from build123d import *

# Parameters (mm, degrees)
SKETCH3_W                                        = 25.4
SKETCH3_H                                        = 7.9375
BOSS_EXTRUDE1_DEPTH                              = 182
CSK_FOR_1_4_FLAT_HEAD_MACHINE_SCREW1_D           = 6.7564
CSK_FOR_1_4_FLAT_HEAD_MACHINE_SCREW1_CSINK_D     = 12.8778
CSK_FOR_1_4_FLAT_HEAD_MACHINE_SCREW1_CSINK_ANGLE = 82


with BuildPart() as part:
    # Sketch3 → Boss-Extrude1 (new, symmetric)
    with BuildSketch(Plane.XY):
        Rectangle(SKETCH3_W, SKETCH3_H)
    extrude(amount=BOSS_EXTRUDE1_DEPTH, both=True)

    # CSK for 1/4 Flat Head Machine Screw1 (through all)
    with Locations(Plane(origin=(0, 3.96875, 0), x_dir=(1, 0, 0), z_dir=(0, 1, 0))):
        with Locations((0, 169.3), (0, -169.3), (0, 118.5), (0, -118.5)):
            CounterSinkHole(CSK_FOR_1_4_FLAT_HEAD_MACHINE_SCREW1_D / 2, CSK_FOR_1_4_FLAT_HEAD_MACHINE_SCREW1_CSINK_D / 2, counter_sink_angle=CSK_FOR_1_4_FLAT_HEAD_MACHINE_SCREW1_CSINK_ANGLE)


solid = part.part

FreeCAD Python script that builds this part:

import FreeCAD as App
import Part
import Sketcher

V = App.Vector
Q = App.Units.Quantity


def add_polygon(sketch, points):
    """Adds a closed chain of lines whose ends are joined by coincident constraints."""
    first, n = sketch.GeometryCount, len(points)
    for a, b in zip(points, points[1:] + points[:1]):
        sketch.addGeometry(Part.LineSegment(App.Vector(*a, 0), App.Vector(*b, 0)), False)
    for i in range(n):
        sketch.addConstraint(Sketcher.Constraint("Coincident", first + i, 2, first + (i + 1) % n, 1))

doc = App.newDocument("Part")
params = doc.addObject("Spreadsheet::Sheet", "Params")
for row, (alias, value) in enumerate([
    ("sketch1_width", "1 in"),
    ("sketch1_height", "0.3125 in"),
    ("pad1_length", "364 mm"),
    ("sketch2_diameter", "0.266 in"),
    ("hole_diameter", "0.266 in"),
    ("hole_csink_diameter", "0.507 in"),
], start=1):
    params.set(f"A{row}", alias)
    params.set(f"B{row}", "=" + value)
    params.setAlias(f"B{row}", alias)

body = doc.addObject("PartDesign::Body", "Body")

sketch1 = body.newObject("Sketcher::SketchObject", "Sketch")
sketch1.AttachmentSupport = (doc.getObject("XY_Plane"), [""])
sketch1.MapMode = "FlatFace"
add_polygon(sketch1, [(-13, 4), (-13, -4), (13, -4), (13, 4)])
sketch1.addConstraint([
    Sketcher.Constraint("Vertical", 0),
    Sketcher.Constraint("Horizontal", 1),
    Sketcher.Constraint("Vertical", 2),
    Sketcher.Constraint("Horizontal", 3),
    Sketcher.Constraint("Symmetric", 0, 2, 2, 2, -1, 1),
    Sketcher.Constraint("DistanceX", 1, 1, 1, 2, Q("1 in")),
    Sketcher.Constraint("DistanceY", 0, 2, 0, 1, Q("0.3125 in")),
])
sketch1.setExpression("Constraints[9]", "Params.sketch1_width")
sketch1.setExpression("Constraints[10]", "Params.sketch1_height")
pad1 = body.newObject("PartDesign::Pad", "Pad")
pad1.Profile = sketch1
pad1.setExpression("Length", "Params.pad1_length")
pad1.Midplane = True

sketch2 = body.newObject("Sketcher::SketchObject", "Sketch001")
sketch2.AttachmentSupport = (doc.getObject("XZ_Plane"), [""])
sketch2.MapMode = "FlatFace"
sketch2.AttachmentOffset = App.Placement(V(0, 0, -0.15625 * 25.4), App.Rotation())
sketch2.addGeometry([
    Part.Circle(V(0, -169.3, 0), V(0, 0, 1), 3.4),
    Part.Circle(V(0, 169.3, 0), V(0, 0, 1), 3.4),
    Part.Circle(V(0, -118.5, 0), V(0, 0, 1), 3.4),
    Part.Circle(V(0, 118.5, 0), V(0, 0, 1), 3.4),
], False)
sketch2.addConstraint([
    Sketcher.Constraint("Equal", 0, 1),
    Sketcher.Constraint("Equal", 1, 2),
    Sketcher.Constraint("Equal", 2, 3),
    Sketcher.Constraint("Symmetric", 0, 3, 1, 3, -1, 1),
    Sketcher.Constraint("Symmetric", 2, 3, 3, 3, -1, 1),
    Sketcher.Constraint("PointOnObject", 0, 3, -2),
    Sketcher.Constraint("PointOnObject", 2, 3, -2),
    Sketcher.Constraint("Diameter", 0, Q("0.266 in")),
    Sketcher.Constraint("DistanceY", 0, 3, 2, 3, Q("2 in")),
    Sketcher.Constraint("DistanceY", 0, 3, -1, 1, Q("169.3 mm")),
])
sketch2.setExpression("Constraints[7]", "Params.sketch2_diameter")
doc.recompute()
hole = body.newObject("PartDesign::Hole", "Hole")
hole.Profile = sketch2
hole.ThreadType = "None"
hole.setExpression("Diameter", "Params.hole_diameter")
hole.DepthType = "ThroughAll"
hole.HoleCutType = "Countersink"
hole.setExpression("HoleCutDiameter", "Params.hole_csink_diameter")
hole.HoleCutCountersinkAngle = 82
hole.Reversed = True

doc.recompute()
